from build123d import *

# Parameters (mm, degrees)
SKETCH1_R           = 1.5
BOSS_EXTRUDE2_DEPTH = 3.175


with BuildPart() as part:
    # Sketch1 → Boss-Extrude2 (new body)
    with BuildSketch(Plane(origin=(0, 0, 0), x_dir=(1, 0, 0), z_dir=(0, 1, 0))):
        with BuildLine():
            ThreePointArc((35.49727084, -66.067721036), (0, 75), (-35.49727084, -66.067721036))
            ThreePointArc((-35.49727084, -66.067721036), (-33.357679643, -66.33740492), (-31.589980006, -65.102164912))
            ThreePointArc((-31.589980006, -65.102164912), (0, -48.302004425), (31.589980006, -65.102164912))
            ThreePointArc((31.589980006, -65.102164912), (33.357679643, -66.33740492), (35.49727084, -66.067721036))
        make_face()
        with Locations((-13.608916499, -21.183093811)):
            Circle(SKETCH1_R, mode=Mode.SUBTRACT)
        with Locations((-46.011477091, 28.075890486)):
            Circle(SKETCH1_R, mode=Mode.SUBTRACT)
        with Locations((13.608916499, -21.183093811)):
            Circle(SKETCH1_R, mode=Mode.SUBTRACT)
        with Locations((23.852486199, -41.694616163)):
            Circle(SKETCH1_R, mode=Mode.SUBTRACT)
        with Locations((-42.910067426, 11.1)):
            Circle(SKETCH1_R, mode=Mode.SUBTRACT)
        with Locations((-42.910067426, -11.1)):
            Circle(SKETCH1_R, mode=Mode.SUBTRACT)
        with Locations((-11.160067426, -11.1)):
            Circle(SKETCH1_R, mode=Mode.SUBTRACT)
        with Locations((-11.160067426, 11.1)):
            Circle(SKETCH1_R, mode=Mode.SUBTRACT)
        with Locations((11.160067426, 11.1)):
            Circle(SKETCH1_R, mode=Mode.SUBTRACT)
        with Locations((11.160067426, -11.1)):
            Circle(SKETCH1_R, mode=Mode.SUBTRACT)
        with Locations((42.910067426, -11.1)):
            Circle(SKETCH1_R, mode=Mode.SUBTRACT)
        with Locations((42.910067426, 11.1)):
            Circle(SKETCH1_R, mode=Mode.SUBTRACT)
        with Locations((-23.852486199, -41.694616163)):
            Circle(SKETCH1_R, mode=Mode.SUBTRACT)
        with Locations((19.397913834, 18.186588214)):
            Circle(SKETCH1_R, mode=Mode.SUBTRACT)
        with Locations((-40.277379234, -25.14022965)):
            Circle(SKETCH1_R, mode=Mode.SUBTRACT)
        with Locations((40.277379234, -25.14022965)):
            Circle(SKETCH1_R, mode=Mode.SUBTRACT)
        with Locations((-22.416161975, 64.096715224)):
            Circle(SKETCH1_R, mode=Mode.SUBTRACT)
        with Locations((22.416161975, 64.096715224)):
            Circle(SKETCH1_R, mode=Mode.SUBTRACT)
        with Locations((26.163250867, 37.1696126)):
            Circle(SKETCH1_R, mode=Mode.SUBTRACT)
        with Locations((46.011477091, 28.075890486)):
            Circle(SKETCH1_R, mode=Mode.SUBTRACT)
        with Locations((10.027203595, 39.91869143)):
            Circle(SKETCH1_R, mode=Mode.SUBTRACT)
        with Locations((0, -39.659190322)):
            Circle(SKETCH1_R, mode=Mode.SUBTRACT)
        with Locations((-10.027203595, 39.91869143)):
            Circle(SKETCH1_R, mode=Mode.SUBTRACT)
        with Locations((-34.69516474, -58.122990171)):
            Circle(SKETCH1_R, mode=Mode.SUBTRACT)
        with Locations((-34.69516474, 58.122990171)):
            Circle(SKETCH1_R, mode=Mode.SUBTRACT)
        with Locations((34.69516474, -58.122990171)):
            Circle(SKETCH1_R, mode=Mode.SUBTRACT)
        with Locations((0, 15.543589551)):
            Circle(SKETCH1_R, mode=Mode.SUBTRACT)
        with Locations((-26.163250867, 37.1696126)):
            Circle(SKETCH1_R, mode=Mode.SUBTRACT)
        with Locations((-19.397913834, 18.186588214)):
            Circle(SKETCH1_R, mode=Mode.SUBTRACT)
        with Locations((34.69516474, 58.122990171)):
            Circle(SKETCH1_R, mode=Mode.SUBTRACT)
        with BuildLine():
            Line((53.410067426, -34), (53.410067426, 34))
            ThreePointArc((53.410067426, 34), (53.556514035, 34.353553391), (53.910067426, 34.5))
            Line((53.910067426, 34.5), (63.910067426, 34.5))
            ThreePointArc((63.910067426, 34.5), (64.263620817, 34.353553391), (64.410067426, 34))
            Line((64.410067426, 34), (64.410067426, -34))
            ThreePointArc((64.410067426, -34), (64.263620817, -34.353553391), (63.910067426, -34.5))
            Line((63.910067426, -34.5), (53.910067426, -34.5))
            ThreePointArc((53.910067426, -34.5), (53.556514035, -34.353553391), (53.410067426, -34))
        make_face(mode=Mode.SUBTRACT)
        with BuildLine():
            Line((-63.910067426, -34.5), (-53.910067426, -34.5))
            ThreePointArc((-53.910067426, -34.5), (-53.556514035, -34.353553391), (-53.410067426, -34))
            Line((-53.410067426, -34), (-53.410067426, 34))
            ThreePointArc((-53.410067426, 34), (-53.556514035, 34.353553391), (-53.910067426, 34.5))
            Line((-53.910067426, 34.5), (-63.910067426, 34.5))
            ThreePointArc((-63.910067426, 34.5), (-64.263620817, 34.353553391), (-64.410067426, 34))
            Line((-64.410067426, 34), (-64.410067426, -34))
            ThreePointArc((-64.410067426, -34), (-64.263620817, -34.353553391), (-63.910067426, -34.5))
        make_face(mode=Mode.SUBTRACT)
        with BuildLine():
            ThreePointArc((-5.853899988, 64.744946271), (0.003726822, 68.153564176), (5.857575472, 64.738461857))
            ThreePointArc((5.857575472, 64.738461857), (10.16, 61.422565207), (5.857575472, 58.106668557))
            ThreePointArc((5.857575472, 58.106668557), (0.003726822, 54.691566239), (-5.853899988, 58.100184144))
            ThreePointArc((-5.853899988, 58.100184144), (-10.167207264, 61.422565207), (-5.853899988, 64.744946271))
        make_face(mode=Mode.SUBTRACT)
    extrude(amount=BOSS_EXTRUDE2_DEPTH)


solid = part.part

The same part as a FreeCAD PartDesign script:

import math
import FreeCAD as App
import Part
import Sketcher
Q = App.Units.Quantity

doc = App.newDocument("Part")
params = doc.addObject("Spreadsheet::Sheet", "Params")
for row, (alias, value) in enumerate([
    ("sketch1_diameter", "3 mm"),
    ("sketch1_radius", "75 mm"),
    ("sketch1_radius2", "3 mm"),
    ("sketch1_radius3", "38.1 mm"),
    ("sketch1_radius4", "0.5 mm"),
    ("pad1_length", "3.175 mm"),
], start=1):
    params.set(f"A{row}", alias)
    params.set(f"B{row}", "=" + value)
    params.setAlias(f"B{row}", alias)

body = doc.addObject("PartDesign::Body", "Body")

# Sketch on XZ plane
sketch1 = body.newObject("Sketcher::SketchObject", "Sketch")
sketch1.AttachmentSupport = (doc.getObject("XZ_Plane"), [""])
sketch1.MapMode = "FlatFace"
sketch1.addGeometry(Part.ArcOfCircle(Part.Circle(App.Vector(0, 0, 0), App.Vector(0, 0, 1), 75), math.radians(118.248522), math.radians(421.751478)), False)
sketch1.addGeometry(Part.ArcOfCircle(Part.Circle(App.Vector(-34.07738, 63.425012, 0), App.Vector(0, 0, 1), 3), math.radians(33.990187), math.radians(118.248522)), False)
sketch1.addGeometry(Part.ArcOfCircle(Part.Circle(App.Vector(0, 86.402004, 0), App.Vector(0, 0, 1), 38.1), math.radians(-146.009813), math.radians(-33.990187)), False)
sketch1.addGeometry(Part.ArcOfCircle(Part.Circle(App.Vector(34.07738, 63.425012, 0), App.Vector(0, 0, 1), 3), math.radians(61.751478), math.radians(146.009813)), False)
sketch1.addGeometry(Part.Circle(App.Vector(-34.695165, 58.12299, 0), App.Vector(0, 0, 1), 1.5), False)
sketch1.addGeometry(Part.Circle(App.Vector(-23.852486, 41.694616, 0), App.Vector(0, 0, 1), 1.5), False)
sketch1.addGeometry(Part.Circle(App.Vector(-40.277379, 25.14023, 0), App.Vector(0, 0, 1), 1.5), False)
sketch1.addGeometry(Part.LineSegment(App.Vector(-53.910067, 34.5, 0), App.Vector(-63.910067, 34.5, 0)), False)
sketch1.addGeometry(Part.ArcOfCircle(Part.Circle(App.Vector(-63.910067, 34, 0), App.Vector(0, 0, 1), 0.5), math.radians(90), math.radians(180)), False)
sketch1.addGeometry(Part.LineSegment(App.Vector(-64.410067, 34, 0), App.Vector(-64.410067, -34, 0)), False)
sketch1.addGeometry(Part.ArcOfCircle(Part.Circle(App.Vector(-63.910067, -34, 0), App.Vector(0, 0, 1), 0.5), math.radians(180), math.radians(270)), False)
sketch1.addGeometry(Part.LineSegment(App.Vector(-63.910067, -34.5, 0), App.Vector(-53.910067, -34.5, 0)), False)
sketch1.addGeometry(Part.ArcOfCircle(Part.Circle(App.Vector(-53.910067, -34, 0), App.Vector(0, 0, 1), 0.5), math.radians(-90), math.radians(0)), False)
sketch1.addGeometry(Part.LineSegment(App.Vector(-53.410067, -34, 0), App.Vector(-53.410067, 34, 0)), False)
sketch1.addGeometry(Part.ArcOfCircle(Part.Circle(App.Vector(-53.910067, 34, 0), App.Vector(0, 0, 1), 0.5), math.radians(0), math.radians(90)), False)
sketch1.addGeometry(Part.Circle(App.Vector(-42.910067, 11.1, 0), App.Vector(0, 0, 1), 1.5), False)
sketch1.addGeometry(Part.Circle(App.Vector(-13.608916, 21.183094, 0), App.Vector(0, 0, 1), 1.5), False)
sketch1.addGeometry(Part.Circle(App.Vector(-11.160067, 11.1, 0), App.Vector(0, 0, 1), 1.5), False)
sketch1.addGeometry(Part.Circle(App.Vector(0, 39.65919, 0), App.Vector(0, 0, 1), 1.5), False)
sketch1.addGeometry(Part.Circle(App.Vector(23.852486, 41.694616, 0), App.Vector(0, 0, 1), 1.5), False)
sketch1.addGeometry(Part.Circle(App.Vector(34.695165, 58.12299, 0), App.Vector(0, 0, 1), 1.5), False)
sketch1.addGeometry(Part.Circle(App.Vector(13.608916, 21.183094, 0), App.Vector(0, 0, 1), 1.5), False)
sketch1.addGeometry(Part.Circle(App.Vector(11.160067, 11.1, 0), App.Vector(0, 0, 1), 1.5), False)
sketch1.addGeometry(Part.Circle(App.Vector(40.277379, 25.14023, 0), App.Vector(0, 0, 1), 1.5), False)
sketch1.addGeometry(Part.Circle(App.Vector(42.910067, 11.1, 0), App.Vector(0, 0, 1), 1.5), False)
sketch1.addGeometry(Part.ArcOfCircle(Part.Circle(App.Vector(53.910067, 34, 0), App.Vector(0, 0, 1), 0.5), math.radians(90), math.radians(180)), False)
sketch1.addGeometry(Part.LineSegment(App.Vector(53.410067, 34, 0), App.Vector(53.410067, -34, 0)), False)
sketch1.addGeometry(Part.ArcOfCircle(Part.Circle(App.Vector(53.910067, -34, 0), App.Vector(0, 0, 1), 0.5), math.radians(180), math.radians(270)), False)
sketch1.addGeometry(Part.LineSegment(App.Vector(53.910067, -34.5, 0), App.Vector(63.910067, -34.5, 0)), False)
sketch1.addGeometry(Part.ArcOfCircle(Part.Circle(App.Vector(63.910067, -34, 0), App.Vector(0, 0, 1), 0.5), math.radians(-90), math.radians(0)), False)
sketch1.addGeometry(Part.LineSegment(App.Vector(64.410067, -34, 0), App.Vector(64.410067, 34, 0)), False)
sketch1.addGeometry(Part.ArcOfCircle(Part.Circle(App.Vector(63.910067, 34, 0), App.Vector(0, 0, 1), 0.5), math.radians(0), math.radians(90)), False)
sketch1.addGeometry(Part.LineSegment(App.Vector(63.910067, 34.5, 0), App.Vector(53.910067, 34.5, 0)), False)
sketch1.addGeometry(Part.Circle(App.Vector(-42.910067, -11.1, 0), App.Vector(0, 0, 1), 1.5), False)
sketch1.addGeometry(Part.Circle(App.Vector(-46.011477, -28.07589, 0), App.Vector(0, 0, 1), 1.5), False)
sketch1.addGeometry(Part.Circle(App.Vector(-19.397914, -18.186588, 0), App.Vector(0, 0, 1), 1.5), False)
sketch1.addGeometry(Part.Circle(App.Vector(-11.160067, -11.1, 0), App.Vector(0, 0, 1), 1.5), False)
sketch1.addGeometry(Part.Circle(App.Vector(-34.695165, -58.12299, 0), App.Vector(0, 0, 1), 1.5), False)
sketch1.addGeometry(Part.Circle(App.Vector(-26.163251, -37.169613, 0), App.Vector(0, 0, 1), 1.5), False)
sketch1.addGeometry(Part.Circle(App.Vector(-10.027204, -39.918691, 0), App.Vector(0, 0, 1), 1.5), False)
sketch1.addGeometry(Part.Circle(App.Vector(-22.416162, -64.096715, 0), App.Vector(0, 0, 1), 1.5), False)
sketch1.addGeometry(Part.ArcOfCircle(Part.Circle(App.Vector(-6.731, -61.422565, 0), App.Vector(0, 0, 1), 3.436207), math.radians(75.211461), math.radians(284.788539)), False)
sketch1.addGeometry(Part.ArcOfCircle(Part.Circle(App.Vector(0, -61.422565, 0), App.Vector(0, 0, 1), 6.731), math.radians(-150.422922), math.radians(-29.513631)), False)
sketch1.addGeometry(Part.ArcOfCircle(Part.Circle(App.Vector(6.731, -61.422565, 0), App.Vector(0, 0, 1), 3.429), math.radians(-104.756816), math.radians(104.756816)), False)
sketch1.addGeometry(Part.ArcOfCircle(Part.Circle(App.Vector(0, -61.422565, 0), App.Vector(0, 0, 1), 6.731), math.radians(29.513631), math.radians(150.422922)), False)
sketch1.addGeometry(Part.Circle(App.Vector(11.160067, -11.1, 0), App.Vector(0, 0, 1), 1.5), False)
sketch1.addGeometry(Part.Circle(App.Vector(0, -15.54359, 0), App.Vector(0, 0, 1), 1.5), False)
sketch1.addGeometry(Part.Circle(App.Vector(19.397914, -18.186588, 0), App.Vector(0, 0, 1), 1.5), False)
sketch1.addGeometry(Part.Circle(App.Vector(42.910067, -11.1, 0), App.Vector(0, 0, 1), 1.5), False)
sketch1.addGeometry(Part.Circle(App.Vector(46.011477, -28.07589, 0), App.Vector(0, 0, 1), 1.5), False)
sketch1.addGeometry(Part.Circle(App.Vector(10.027204, -39.918691, 0), App.Vector(0, 0, 1), 1.5), False)
sketch1.addGeometry(Part.Circle(App.Vector(26.163251, -37.169613, 0), App.Vector(0, 0, 1), 1.5), False)
sketch1.addGeometry(Part.Circle(App.Vector(22.416162, -64.096715, 0), App.Vector(0, 0, 1), 1.5), False)
sketch1.addGeometry(Part.Circle(App.Vector(34.695165, -58.12299, 0), App.Vector(0, 0, 1), 1.5), False)
sketch1.addConstraint(Sketcher.Constraint("Tangent", 0, 1, 1, 2))
sketch1.addConstraint(Sketcher.Constraint("Tangent", 1, 1, 2, 1))
sketch1.addConstraint(Sketcher.Constraint("Tangent", 2, 2, 3, 2))
sketch1.addConstraint(Sketcher.Constraint("Tangent", 3, 1, 0, 2))
sketch1.addConstraint(Sketcher.Constraint("Tangent", 7, 2, 8, 1))
sketch1.addConstraint(Sketcher.Constraint("Tangent", 8, 2, 9, 1))
sketch1.addConstraint(Sketcher.Constraint("Tangent", 9, 2, 10, 1))
sketch1.addConstraint(Sketcher.Constraint("Tangent", 10, 2, 11, 1))
sketch1.addConstraint(Sketcher.Constraint("Tangent", 11, 2, 12, 1))
sketch1.addConstraint(Sketcher.Constraint("Tangent", 12, 2, 13, 1))
sketch1.addConstraint(Sketcher.Constraint("Tangent", 13, 2, 14, 1))
sketch1.addConstraint(Sketcher.Constraint("Tangent", 14, 2, 7, 1))
sketch1.addConstraint(Sketcher.Constraint("Tangent", 25, 2, 26, 1))
sketch1.addConstraint(Sketcher.Constraint("Tangent", 26, 2, 27, 1))
sketch1.addConstraint(Sketcher.Constraint("Tangent", 27, 2, 28, 1))
sketch1.addConstraint(Sketcher.Constraint("Tangent", 28, 2, 29, 1))
sketch1.addConstraint(Sketcher.Constraint("Tangent", 29, 2, 30, 1))
sketch1.addConstraint(Sketcher.Constraint("Tangent", 30, 2, 31, 1))
sketch1.addConstraint(Sketcher.Constraint("Tangent", 31, 2, 32, 1))
sketch1.addConstraint(Sketcher.Constraint("Tangent", 32, 2, 25, 1))
sketch1.addConstraint(Sketcher.Constraint("Coincident", 41, 2, 42, 1))
sketch1.addConstraint(Sketcher.Constraint("Coincident", 42, 2, 43, 1))
sketch1.addConstraint(Sketcher.Constraint("Coincident", 43, 2, 44, 1))
sketch1.addConstraint(Sketcher.Constraint("Coincident", 44, 2, 41, 1))
sketch1.addConstraint(Sketcher.Constraint("Horizontal", 7))
sketch1.addConstraint(Sketcher.Constraint("Vertical", 9))
sketch1.addConstraint(Sketcher.Constraint("Horizontal", 11))
sketch1.addConstraint(Sketcher.Constraint("Vertical", 13))
sketch1.addConstraint(Sketcher.Constraint("Vertical", 26))
sketch1.addConstraint(Sketcher.Constraint("Horizontal", 28))
sketch1.addConstraint(Sketcher.Constraint("Vertical", 30))
sketch1.addConstraint(Sketcher.Constraint("Horizontal", 32))
sketch1.addConstraint(Sketcher.Constraint("Coincident", 0, 3, -1, 1))
sketch1.addConstraint(Sketcher.Constraint("Coincident", 44, 3, 42, 3))
sketch1.addConstraint(Sketcher.Constraint("Equal", 1, 3))
sketch1.addConstraint(Sketcher.Constraint("Equal", 4, 5))
sketch1.addConstraint(Sketcher.Constraint("Equal", 5, 6))
sketch1.addConstraint(Sketcher.Constraint("Equal", 8, 10))
sketch1.addConstraint(Sketcher.Constraint("Equal", 10, 12))
sketch1.addConstraint(Sketcher.Constraint("Equal", 12, 14))
sketch1.addConstraint(Sketcher.Constraint("Equal", 6, 15))
sketch1.addConstraint(Sketcher.Constraint("Equal", 15, 16))
sketch1.addConstraint(Sketcher.Constraint("Equal", 16, 17))
sketch1.addConstraint(Sketcher.Constraint("Equal", 17, 18))
sketch1.addConstraint(Sketcher.Constraint("Equal", 18, 19))
sketch1.addConstraint(Sketcher.Constraint("Equal", 19, 20))
sketch1.addConstraint(Sketcher.Constraint("Equal", 20, 21))
sketch1.addConstraint(Sketcher.Constraint("Equal", 21, 22))
sketch1.addConstraint(Sketcher.Constraint("Equal", 22, 23))
sketch1.addConstraint(Sketcher.Constraint("Equal", 23, 24))
sketch1.addConstraint(Sketcher.Constraint("Equal", 14, 25))
sketch1.addConstraint(Sketcher.Constraint("Equal", 25, 27))
sketch1.addConstraint(Sketcher.Constraint("Equal", 27, 29))
sketch1.addConstraint(Sketcher.Constraint("Equal", 29, 31))
sketch1.addConstraint(Sketcher.Constraint("Equal", 24, 33))
sketch1.addConstraint(Sketcher.Constraint("Equal", 33, 34))
sketch1.addConstraint(Sketcher.Constraint("Equal", 34, 35))
sketch1.addConstraint(Sketcher.Constraint("Equal", 35, 36))
sketch1.addConstraint(Sketcher.Constraint("Equal", 36, 37))
sketch1.addConstraint(Sketcher.Constraint("Equal", 37, 38))
sketch1.addConstraint(Sketcher.Constraint("Equal", 38, 39))
sketch1.addConstraint(Sketcher.Constraint("Equal", 39, 40))
sketch1.addConstraint(Sketcher.Constraint("Equal", 42, 44))
sketch1.addConstraint(Sketcher.Constraint("Equal", 40, 45))
sketch1.addConstraint(Sketcher.Constraint("Equal", 45, 46))
sketch1.addConstraint(Sketcher.Constraint("Equal", 46, 47))
sketch1.addConstraint(Sketcher.Constraint("Equal", 47, 48))
sketch1.addConstraint(Sketcher.Constraint("Equal", 48, 49))
sketch1.addConstraint(Sketcher.Constraint("Equal", 49, 50))
sketch1.addConstraint(Sketcher.Constraint("Equal", 50, 51))
sketch1.addConstraint(Sketcher.Constraint("Equal", 51, 52))
sketch1.addConstraint(Sketcher.Constraint("Equal", 52, 53))
sketch1.addConstraint(Sketcher.Constraint("Symmetric", 12, 3, 25, 3, -1, 1))
sketch1.addConstraint(Sketcher.Constraint("Symmetric", 8, 3, 29, 3, -1, 1))
sketch1.addConstraint(Sketcher.Constraint("Symmetric", 24, 3, 33, 3, -1, 1))
sketch1.addConstraint(Sketcher.Constraint("Symmetric", 22, 3, 36, 3, -1, 1))
sketch1.addConstraint(Sketcher.Constraint("Symmetric", 20, 3, 37, 3, -1, 1))
sketch1.addConstraint(Sketcher.Constraint("Symmetric", 17, 3, 45, 3, -1, 1))
sketch1.addConstraint(Sketcher.Constraint("Symmetric", 15, 3, 48, 3, -1, 1))
sketch1.addConstraint(Sketcher.Constraint("Symmetric", 4, 3, 53, 3, -1, 1))
sketch1.addConstraint(Sketcher.Constraint("Symmetric", 5, 3, 19, 3, -2))
sketch1.addConstraint(Sketcher.Constraint("Symmetric", 4, 3, 20, 3, -2))
sketch1.addConstraint(Sketcher.Constraint("Symmetric", 16, 3, 21, 3, -2))
sketch1.addConstraint(Sketcher.Constraint("Symmetric", 17, 3, 22, 3, -2))
sketch1.addConstraint(Sketcher.Constraint("Symmetric", 6, 3, 23, 3, -2))
sketch1.addConstraint(Sketcher.Constraint("Symmetric", 15, 3, 24, 3, -2))
sketch1.addConstraint(Sketcher.Constraint("Symmetric", 41, 3, 43, 3, -2))
sketch1.addConstraint(Sketcher.Constraint("Symmetric", 35, 3, 47, 3, -2))
sketch1.addConstraint(Sketcher.Constraint("Symmetric", 34, 3, 49, 3, -2))
sketch1.addConstraint(Sketcher.Constraint("Symmetric", 39, 3, 50, 3, -2))
sketch1.addConstraint(Sketcher.Constraint("Symmetric", 38, 3, 51, 3, -2))
sketch1.addConstraint(Sketcher.Constraint("Symmetric", 40, 3, 52, 3, -2))
sketch1.addConstraint(Sketcher.Constraint("PointOnObject", 2, 3, -2))
sketch1.addConstraint(Sketcher.Constraint("PointOnObject", 18, 3, -2))
sketch1.addConstraint(Sketcher.Constraint("PointOnObject", 42, 3, -2))
sketch1.addConstraint(Sketcher.Constraint("PointOnObject", 46, 3, -2))
sketch1.addConstraint(Sketcher.Constraint("Horizontal", 15, 3, 17, 3))
sketch1.addConstraint(Sketcher.Constraint("Horizontal", 14, 3, 25, 3))
sketch1.addConstraint(Sketcher.Constraint("Horizontal", 41, 3, 42, 3))
sketch1.addConstraint(Sketcher.Constraint("Diameter", 4, Q("3 mm")))
sketch1.addConstraint(Sketcher.Constraint("Radius", 0, Q("75 mm")))
sketch1.addConstraint(Sketcher.Constraint("Radius", 1, Q("3 mm")))
sketch1.addConstraint(Sketcher.Constraint("Radius", 2, Q("38.1 mm")))
sketch1.addConstraint(Sketcher.Constraint("Radius", 8, Q("0.5 mm")))
sketch1.addConstraint(Sketcher.Constraint("DistanceX", 7, 2, 7, 1, Q("10 mm")))
sketch1.addConstraint(Sketcher.Constraint("DistanceY", 9, 2, 9, 1, Q("68 mm")))
sketch1.addConstraint(Sketcher.Constraint("Radius", 42, Q("6.731 mm")))
sketch1.addConstraint(Sketcher.Constraint("Radius", 43, Q("3.429 mm")))
sketch1.addConstraint(Sketcher.Constraint("DistanceY", -1, 1, 15, 3, Q("11.1 mm")))
sketch1.addConstraint(Sketcher.Constraint("DistanceX", 41, 3, -1, 1, Q("6.731 mm")))
sketch1.addConstraint(Sketcher.Constraint("Radius", 41, Q("3.436207 mm")))
sketch1.addConstraint(Sketcher.Constraint("DistanceX", 1, 3, -1, 1, Q("34.07738 mm")))
sketch1.addConstraint(Sketcher.Constraint("DistanceY", -1, 1, 4, 3, Q("58.12299 mm")))
sketch1.addConstraint(Sketcher.Constraint("DistanceX", 6, 3, -1, 1, Q("40.277379 mm")))
sketch1.addConstraint(Sketcher.Constraint("DistanceY", -1, 1, 6, 3, Q("25.14023 mm")))
sketch1.addConstraint(Sketcher.Constraint("DistanceY", -1, 1, 18, 3, Q("39.65919 mm")))
sketch1.addConstraint(Sketcher.Constraint("DistanceY", 34, 3, -1, 1, Q("28.07589 mm")))
sketch1.addConstraint(Sketcher.Constraint("DistanceY", 35, 3, -1, 1, Q("18.186588 mm")))
sketch1.addConstraint(Sketcher.Constraint("DistanceX", 38, 3, -1, 1, Q("26.163251 mm")))
sketch1.addConstraint(Sketcher.Constraint("DistanceY", 39, 3, -1, 1, Q("39.918691 mm")))
sketch1.addConstraint(Sketcher.Constraint("DistanceX", 40, 3, -1, 1, Q("22.416162 mm")))
sketch1.addConstraint(Sketcher.Constraint("DistanceY", 46, 3, -1, 1, Q("15.54359 mm")))
sketch1.addConstraint(Sketcher.Constraint("DistanceY", 42, 2, -1, 1, Q("64.738462 mm")))
sketch1.addConstraint(Sketcher.Constraint("DistanceX", 4, 3, -1, 1, Q("34.695165 mm")))
sketch1.addConstraint(Sketcher.Constraint("DistanceX", 5, 3, -1, 1, Q("23.852486 mm")))
sketch1.addConstraint(Sketcher.Constraint("DistanceY", -1, 1, 5, 3, Q("41.694616 mm")))
sketch1.addConstraint(Sketcher.Constraint("DistanceX", 8, 3, -1, 1, Q("63.910067 mm")))
sketch1.addConstraint(Sketcher.Constraint("DistanceX", 15, 3, -1, 1, Q("42.910067 mm")))
sketch1.addConstraint(Sketcher.Constraint("DistanceX", 16, 3, -1, 1, Q("13.608916 mm")))
sketch1.addConstraint(Sketcher.Constraint("DistanceY", -1, 1, 16, 3, Q("21.183094 mm")))
sketch1.addConstraint(Sketcher.Constraint("DistanceX", 17, 3, -1, 1, Q("11.160067 mm")))
sketch1.addConstraint(Sketcher.Constraint("DistanceX", 34, 3, -1, 1, Q("46.011477 mm")))
sketch1.addConstraint(Sketcher.Constraint("DistanceX", 35, 3, -1, 1, Q("19.397914 mm")))
sketch1.addConstraint(Sketcher.Constraint("DistanceY", 38, 3, -1, 1, Q("37.169613 mm")))
sketch1.addConstraint(Sketcher.Constraint("DistanceX", 39, 3, -1, 1, Q("10.027204 mm")))
sketch1.addConstraint(Sketcher.Constraint("DistanceY", 40, 3, -1, 1, Q("64.096715 mm")))
sketch1.setExpression("Constraints[99]", "Params.sketch1_diameter")
sketch1.setExpression("Constraints[100]", "Params.sketch1_radius")
sketch1.setExpression("Constraints[101]", "Params.sketch1_radius2")
sketch1.setExpression("Constraints[102]", "Params.sketch1_radius3")
sketch1.setExpression("Constraints[103]", "Params.sketch1_radius4")
pad1 = body.newObject("PartDesign::Pad", "Pad")
pad1.Profile = sketch1
pad1.setExpression("Length", "Params.pad1_length")
pad1.Reversed = True

doc.recompute()
